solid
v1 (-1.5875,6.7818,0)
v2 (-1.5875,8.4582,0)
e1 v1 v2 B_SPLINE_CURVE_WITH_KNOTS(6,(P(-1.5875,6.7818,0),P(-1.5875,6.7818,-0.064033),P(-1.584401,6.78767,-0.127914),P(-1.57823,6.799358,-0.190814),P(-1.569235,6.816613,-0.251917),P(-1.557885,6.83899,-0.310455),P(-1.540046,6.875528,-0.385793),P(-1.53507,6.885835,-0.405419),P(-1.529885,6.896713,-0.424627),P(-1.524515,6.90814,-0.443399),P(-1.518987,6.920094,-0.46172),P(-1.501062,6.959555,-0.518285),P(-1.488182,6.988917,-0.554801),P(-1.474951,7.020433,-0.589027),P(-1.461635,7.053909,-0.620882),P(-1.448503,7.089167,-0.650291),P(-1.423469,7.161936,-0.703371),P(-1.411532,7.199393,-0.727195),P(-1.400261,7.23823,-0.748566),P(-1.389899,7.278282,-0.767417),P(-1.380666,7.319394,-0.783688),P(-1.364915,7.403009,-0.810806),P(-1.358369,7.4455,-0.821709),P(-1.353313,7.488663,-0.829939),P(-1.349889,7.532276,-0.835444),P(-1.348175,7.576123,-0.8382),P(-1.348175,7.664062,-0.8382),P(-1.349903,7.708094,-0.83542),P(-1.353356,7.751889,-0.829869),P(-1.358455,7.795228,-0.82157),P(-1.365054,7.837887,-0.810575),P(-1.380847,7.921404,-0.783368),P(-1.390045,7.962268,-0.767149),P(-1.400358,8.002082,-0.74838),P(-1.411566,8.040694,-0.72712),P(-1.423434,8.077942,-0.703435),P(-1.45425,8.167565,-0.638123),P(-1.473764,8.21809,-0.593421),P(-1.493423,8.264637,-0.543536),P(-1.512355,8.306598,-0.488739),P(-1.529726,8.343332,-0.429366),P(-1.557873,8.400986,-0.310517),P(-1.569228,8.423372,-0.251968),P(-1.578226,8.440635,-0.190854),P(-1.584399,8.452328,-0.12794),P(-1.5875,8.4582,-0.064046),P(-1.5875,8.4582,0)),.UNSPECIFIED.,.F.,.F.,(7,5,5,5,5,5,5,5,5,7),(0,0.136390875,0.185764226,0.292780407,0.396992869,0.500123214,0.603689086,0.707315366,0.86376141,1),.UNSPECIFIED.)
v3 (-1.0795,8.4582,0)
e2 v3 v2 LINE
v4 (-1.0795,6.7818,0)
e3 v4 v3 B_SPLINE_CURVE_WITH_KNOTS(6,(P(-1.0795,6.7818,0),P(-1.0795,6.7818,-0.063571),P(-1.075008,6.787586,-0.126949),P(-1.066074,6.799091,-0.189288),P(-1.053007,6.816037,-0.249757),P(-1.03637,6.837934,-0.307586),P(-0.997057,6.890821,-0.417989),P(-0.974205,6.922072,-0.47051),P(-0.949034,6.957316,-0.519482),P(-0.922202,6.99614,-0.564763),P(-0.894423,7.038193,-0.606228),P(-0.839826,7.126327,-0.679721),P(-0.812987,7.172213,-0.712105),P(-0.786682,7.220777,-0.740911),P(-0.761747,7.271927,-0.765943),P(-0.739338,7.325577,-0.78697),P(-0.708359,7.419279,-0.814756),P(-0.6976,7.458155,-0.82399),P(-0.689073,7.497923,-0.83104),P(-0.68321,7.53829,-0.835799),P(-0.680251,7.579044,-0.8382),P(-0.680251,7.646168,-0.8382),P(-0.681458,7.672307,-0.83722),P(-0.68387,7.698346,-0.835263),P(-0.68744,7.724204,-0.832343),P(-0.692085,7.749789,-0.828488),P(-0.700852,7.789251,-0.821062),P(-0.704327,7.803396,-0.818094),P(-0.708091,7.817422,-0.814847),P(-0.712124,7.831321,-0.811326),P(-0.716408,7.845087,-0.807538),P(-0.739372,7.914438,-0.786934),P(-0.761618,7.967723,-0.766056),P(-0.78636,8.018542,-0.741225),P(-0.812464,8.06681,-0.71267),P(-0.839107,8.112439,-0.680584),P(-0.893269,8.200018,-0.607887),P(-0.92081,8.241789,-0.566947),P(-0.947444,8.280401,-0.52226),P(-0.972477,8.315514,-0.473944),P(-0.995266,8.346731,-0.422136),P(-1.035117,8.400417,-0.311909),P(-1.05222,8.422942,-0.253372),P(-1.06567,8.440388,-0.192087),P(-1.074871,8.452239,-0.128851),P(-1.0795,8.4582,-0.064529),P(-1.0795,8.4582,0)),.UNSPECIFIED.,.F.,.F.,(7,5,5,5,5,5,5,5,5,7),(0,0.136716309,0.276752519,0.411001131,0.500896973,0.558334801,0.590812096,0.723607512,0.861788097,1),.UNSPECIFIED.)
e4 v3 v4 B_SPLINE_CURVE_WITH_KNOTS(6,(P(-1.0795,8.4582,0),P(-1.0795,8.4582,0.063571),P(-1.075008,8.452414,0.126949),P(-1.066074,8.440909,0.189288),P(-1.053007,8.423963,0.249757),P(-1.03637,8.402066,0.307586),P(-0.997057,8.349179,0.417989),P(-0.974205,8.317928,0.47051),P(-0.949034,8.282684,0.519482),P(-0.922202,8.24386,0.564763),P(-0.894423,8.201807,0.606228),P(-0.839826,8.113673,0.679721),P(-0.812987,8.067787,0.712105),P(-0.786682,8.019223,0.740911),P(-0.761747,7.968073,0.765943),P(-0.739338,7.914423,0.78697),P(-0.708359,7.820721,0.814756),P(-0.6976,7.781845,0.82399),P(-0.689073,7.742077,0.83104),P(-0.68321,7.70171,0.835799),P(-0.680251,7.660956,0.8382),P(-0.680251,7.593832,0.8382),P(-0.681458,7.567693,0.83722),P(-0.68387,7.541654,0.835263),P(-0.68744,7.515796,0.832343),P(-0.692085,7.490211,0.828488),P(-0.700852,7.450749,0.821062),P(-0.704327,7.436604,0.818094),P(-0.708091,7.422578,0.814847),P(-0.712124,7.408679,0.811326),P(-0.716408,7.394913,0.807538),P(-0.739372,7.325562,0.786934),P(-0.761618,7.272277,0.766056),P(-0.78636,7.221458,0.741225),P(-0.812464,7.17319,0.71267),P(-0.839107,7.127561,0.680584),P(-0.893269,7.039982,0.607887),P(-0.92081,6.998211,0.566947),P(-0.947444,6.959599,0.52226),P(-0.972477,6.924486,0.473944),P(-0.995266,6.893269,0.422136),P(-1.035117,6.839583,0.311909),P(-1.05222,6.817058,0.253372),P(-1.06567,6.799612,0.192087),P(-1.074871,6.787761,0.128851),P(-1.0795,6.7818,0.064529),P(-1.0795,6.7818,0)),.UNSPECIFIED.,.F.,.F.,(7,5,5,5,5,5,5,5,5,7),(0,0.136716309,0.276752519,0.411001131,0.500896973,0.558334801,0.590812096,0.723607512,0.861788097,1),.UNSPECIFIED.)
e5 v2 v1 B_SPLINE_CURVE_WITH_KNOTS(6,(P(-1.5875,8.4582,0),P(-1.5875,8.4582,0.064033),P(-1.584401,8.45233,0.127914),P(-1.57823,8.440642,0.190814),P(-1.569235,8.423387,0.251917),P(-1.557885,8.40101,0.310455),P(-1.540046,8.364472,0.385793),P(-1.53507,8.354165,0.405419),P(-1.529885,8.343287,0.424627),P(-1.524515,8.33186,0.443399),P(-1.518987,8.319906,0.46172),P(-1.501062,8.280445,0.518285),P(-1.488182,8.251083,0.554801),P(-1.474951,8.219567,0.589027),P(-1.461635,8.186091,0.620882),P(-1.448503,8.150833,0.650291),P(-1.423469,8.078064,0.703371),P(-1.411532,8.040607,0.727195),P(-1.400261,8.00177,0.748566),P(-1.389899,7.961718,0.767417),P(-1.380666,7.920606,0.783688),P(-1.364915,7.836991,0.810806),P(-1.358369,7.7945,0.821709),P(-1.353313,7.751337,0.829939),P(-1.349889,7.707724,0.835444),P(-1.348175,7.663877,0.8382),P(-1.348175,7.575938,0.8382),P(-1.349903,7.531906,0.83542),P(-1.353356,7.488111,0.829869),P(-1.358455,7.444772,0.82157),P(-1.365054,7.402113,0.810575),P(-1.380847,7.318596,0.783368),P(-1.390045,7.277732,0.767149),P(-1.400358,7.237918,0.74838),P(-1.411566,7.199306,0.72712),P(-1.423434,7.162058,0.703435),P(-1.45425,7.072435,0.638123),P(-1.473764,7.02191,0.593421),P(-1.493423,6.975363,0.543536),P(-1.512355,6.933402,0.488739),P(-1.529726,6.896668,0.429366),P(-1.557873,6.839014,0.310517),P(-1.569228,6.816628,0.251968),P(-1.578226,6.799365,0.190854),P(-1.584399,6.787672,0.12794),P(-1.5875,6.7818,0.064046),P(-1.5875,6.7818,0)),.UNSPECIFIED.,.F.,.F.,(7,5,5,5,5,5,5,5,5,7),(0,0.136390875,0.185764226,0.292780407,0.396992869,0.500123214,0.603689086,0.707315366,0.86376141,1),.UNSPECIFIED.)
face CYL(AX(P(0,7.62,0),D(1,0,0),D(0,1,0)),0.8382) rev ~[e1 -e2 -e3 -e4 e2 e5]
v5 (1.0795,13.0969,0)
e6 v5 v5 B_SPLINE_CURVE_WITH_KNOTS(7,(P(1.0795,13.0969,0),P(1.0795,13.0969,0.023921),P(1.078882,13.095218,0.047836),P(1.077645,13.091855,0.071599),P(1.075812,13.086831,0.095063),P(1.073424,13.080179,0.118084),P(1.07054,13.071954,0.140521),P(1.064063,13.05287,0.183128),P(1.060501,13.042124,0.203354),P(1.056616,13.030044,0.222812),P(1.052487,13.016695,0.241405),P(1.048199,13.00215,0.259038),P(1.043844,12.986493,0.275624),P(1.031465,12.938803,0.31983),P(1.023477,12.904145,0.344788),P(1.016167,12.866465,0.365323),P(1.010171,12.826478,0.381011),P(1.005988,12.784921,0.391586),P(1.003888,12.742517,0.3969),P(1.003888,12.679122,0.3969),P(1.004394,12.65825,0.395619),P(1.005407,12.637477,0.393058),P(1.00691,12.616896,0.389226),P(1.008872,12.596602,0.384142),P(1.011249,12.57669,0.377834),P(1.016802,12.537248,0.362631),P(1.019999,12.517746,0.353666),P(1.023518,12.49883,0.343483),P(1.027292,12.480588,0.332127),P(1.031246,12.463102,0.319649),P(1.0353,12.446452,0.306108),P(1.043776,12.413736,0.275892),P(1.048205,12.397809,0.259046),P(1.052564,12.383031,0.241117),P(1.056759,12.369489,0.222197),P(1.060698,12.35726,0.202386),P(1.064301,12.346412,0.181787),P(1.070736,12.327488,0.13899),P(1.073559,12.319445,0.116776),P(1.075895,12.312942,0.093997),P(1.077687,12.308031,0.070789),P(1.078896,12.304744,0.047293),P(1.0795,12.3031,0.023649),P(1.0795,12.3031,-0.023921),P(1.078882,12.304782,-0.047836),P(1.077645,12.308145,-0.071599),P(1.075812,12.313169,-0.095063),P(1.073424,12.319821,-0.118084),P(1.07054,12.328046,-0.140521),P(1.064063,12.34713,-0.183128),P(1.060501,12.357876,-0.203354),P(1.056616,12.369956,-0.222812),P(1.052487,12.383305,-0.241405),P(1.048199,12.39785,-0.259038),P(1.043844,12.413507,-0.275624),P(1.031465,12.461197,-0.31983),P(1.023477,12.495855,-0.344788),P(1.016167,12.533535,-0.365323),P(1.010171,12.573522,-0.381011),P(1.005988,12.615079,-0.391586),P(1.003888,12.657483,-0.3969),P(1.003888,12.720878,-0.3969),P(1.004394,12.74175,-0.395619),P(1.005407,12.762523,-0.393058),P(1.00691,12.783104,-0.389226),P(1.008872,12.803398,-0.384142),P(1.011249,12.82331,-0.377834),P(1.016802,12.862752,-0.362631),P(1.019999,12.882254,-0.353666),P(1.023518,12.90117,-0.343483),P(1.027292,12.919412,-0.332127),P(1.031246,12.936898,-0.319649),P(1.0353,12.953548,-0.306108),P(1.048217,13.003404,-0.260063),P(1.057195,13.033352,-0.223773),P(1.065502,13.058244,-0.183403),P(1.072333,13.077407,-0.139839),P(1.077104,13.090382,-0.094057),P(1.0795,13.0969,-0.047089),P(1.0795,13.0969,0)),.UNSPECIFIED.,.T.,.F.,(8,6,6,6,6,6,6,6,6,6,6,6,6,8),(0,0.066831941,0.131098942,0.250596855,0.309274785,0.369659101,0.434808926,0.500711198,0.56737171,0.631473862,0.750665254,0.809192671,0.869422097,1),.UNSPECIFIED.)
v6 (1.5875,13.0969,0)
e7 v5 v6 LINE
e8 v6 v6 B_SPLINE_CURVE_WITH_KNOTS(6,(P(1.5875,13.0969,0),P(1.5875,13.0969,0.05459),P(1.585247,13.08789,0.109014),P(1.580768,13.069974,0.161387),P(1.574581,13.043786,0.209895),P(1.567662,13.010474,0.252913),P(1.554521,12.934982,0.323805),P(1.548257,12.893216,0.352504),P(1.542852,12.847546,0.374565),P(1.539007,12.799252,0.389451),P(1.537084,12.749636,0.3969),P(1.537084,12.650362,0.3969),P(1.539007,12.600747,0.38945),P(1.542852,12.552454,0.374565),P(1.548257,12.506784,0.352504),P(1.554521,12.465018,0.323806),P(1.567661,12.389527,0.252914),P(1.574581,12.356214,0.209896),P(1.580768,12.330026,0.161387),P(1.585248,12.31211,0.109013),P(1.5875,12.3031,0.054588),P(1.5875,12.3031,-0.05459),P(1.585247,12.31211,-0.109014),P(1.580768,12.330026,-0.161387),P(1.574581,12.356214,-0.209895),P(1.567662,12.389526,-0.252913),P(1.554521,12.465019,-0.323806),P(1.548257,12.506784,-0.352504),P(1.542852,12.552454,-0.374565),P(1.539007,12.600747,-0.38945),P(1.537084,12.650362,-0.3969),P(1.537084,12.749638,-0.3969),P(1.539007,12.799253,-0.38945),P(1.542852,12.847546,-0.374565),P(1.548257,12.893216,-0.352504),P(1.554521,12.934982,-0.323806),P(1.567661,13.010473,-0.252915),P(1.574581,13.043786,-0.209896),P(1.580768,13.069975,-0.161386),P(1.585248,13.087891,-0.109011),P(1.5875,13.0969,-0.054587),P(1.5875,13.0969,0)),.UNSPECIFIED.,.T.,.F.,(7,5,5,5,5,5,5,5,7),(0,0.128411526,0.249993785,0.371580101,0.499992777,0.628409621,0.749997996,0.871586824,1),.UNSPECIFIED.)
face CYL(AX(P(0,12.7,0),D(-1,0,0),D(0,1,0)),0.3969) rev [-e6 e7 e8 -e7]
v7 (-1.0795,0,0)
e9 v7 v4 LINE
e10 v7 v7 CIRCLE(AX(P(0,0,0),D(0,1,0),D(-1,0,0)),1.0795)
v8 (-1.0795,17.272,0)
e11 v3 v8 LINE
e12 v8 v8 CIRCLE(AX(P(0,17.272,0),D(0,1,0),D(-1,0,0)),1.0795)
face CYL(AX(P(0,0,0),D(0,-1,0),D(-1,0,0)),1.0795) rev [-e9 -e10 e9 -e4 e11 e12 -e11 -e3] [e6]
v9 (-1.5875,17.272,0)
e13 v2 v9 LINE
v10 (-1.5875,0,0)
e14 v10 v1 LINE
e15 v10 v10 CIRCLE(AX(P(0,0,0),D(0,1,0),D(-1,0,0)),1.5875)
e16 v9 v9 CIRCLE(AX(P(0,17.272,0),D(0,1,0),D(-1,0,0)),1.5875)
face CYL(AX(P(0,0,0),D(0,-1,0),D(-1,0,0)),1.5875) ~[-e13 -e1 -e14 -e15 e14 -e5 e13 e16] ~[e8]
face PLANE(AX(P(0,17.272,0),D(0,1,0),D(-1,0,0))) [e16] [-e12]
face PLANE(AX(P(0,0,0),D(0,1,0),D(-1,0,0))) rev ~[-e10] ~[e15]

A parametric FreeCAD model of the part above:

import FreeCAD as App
import Part
import Sketcher
Q = App.Units.Quantity

doc = App.newDocument("Part")
body = doc.addObject("PartDesign::Body", "Body")

sketch1 = doc.addObject("Sketcher::SketchObject", "Sketch")
body.addObject(sketch1)
sketch1.AttachmentSupport = (doc.XZ_Plane, [""])
sketch1.MapMode = "FlatFace"
sketch1.addGeometry(Part.Circle(App.Vector(0, 0, 0), App.Vector(0, 0, 1), 1.6), False)
sketch1.addGeometry(Part.Circle(App.Vector(0, 0, 0), App.Vector(0, 0, 1), 1.1), False)
sketch1.addConstraint(Sketcher.Constraint("Coincident", 0, 3, -1, 1))
sketch1.addConstraint(Sketcher.Constraint("Coincident", 1, 3, -1, 1))
sketch1.addConstraint(Sketcher.Constraint("Diameter", 0, Q("0.125 in")))
sketch1.addConstraint(Sketcher.Constraint("Diameter", 1, Q("0.085 in")))
pad1 = doc.addObject("PartDesign::Pad", "Pad")
body.addObject(pad1)
pad1.Profile = sketch1
pad1.Length = Q("0.68 in")
pad1.Reversed = True

sketch2 = doc.addObject("Sketcher::SketchObject", "Sketch001")
body.addObject(sketch2)
sketch2.AttachmentSupport = (doc.YZ_Plane, [""])
sketch2.MapMode = "FlatFace"
sketch2.addGeometry(Part.Circle(App.Vector(7.6, 0, 0), App.Vector(0, 0, 1), 0.8), False)
sketch2.addConstraint(Sketcher.Constraint("PointOnObject", 0, 3, -1))
sketch2.addConstraint(Sketcher.Constraint("Diameter", 0, Q("0.066 in")))
sketch2.addConstraint(Sketcher.Constraint("DistanceX", -1, 1, 0, 3, Q("0.3 in")))
pocket1 = doc.addObject("PartDesign::Pocket", "Pocket")
body.addObject(pocket1)
pocket1.Profile = sketch2
pocket1.Length = Q("0.68 in")

sketch3 = doc.addObject("Sketcher::SketchObject", "Sketch002")
body.addObject(sketch3)
sketch3.AttachmentSupport = (doc.YZ_Plane, [""])
sketch3.MapMode = "FlatFace"
sketch3.addGeometry(Part.Circle(App.Vector(12.7, 0, 0), App.Vector(0, 0, 1), 0.4), False)
sketch3.addConstraint(Sketcher.Constraint("PointOnObject", 0, 3, -1))
sketch3.addConstraint(Sketcher.Constraint("Diameter", 0, Q("0.031252 in")))
sketch3.addConstraint(Sketcher.Constraint("DistanceX", -1, 1, 0, 3, Q("0.5 in")))
pocket2 = doc.addObject("PartDesign::Pocket", "Pocket001")
body.addObject(pocket2)
pocket2.Profile = sketch3
pocket2.Length = Q("1 in")
pocket2.Reversed = True

doc.recompute()
